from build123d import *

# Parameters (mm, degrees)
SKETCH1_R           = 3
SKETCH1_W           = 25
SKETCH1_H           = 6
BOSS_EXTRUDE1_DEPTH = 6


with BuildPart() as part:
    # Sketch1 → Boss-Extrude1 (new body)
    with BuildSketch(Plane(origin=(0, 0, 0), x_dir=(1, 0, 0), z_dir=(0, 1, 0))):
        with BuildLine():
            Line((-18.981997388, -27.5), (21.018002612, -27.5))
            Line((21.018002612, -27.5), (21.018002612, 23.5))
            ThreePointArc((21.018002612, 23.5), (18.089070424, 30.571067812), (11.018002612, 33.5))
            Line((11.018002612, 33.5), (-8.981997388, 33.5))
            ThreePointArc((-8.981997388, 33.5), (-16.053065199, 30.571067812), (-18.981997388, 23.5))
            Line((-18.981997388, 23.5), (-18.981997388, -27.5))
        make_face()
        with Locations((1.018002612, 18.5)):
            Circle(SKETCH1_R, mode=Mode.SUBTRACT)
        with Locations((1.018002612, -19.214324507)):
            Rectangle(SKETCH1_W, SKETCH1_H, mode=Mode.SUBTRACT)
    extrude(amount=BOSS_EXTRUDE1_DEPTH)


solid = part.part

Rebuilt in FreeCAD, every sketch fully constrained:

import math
import FreeCAD as App
import Part
import Sketcher

V = App.Vector

doc = App.newDocument("Part")
body = doc.addObject("PartDesign::Body", "Body")

# Sketch on XZ plane
sketch1 = body.newObject("Sketcher::SketchObject", "Sketch")
sketch1.AttachmentSupport = (doc.getObject("XZ_Plane"), [""])
sketch1.MapMode = "FlatFace"
sketch1.addGeometry(Part.LineSegment(V(-18.981997, 27.5, 0), V(21.018003, 27.5, 0)), False)
sketch1.addGeometry(Part.LineSegment(V(21.018003, 27.5, 0), V(21.018003, -23.5, 0)), False)
sketch1.addGeometry(Part.ArcOfCircle(Part.Circle(V(11.018003, -23.5, 0), V(0, 0, 1), 10), math.radians(-90), math.radians(0)), False)
sketch1.addGeometry(Part.LineSegment(V(11.018003, -33.5, 0), V(-8.981997, -33.5, 0)), False)
sketch1.addGeometry(Part.ArcOfCircle(Part.Circle(V(-8.981997, -23.5, 0), V(0, 0, 1), 10), math.radians(-180), math.radians(-90)), False)
sketch1.addGeometry(Part.LineSegment(V(-18.981997, -23.5, 0), V(-18.981997, 27.5, 0)), False)
sketch1.addGeometry(Part.LineSegment(V(13.518003, 22.214325, 0), V(-11.481997, 22.214325, 0)), False)
sketch1.addGeometry(Part.LineSegment(V(-11.481997, 22.214325, 0), V(-11.481997, 16.214325, 0)), False)
sketch1.addGeometry(Part.LineSegment(V(-11.481997, 16.214325, 0), V(13.518003, 16.214325, 0)), False)
sketch1.addGeometry(Part.LineSegment(V(13.518003, 16.214325, 0), V(13.518003, 22.214325, 0)), False)
sketch1.addGeometry(Part.Circle(V(1.018003, -18.5, 0), V(0, 0, 1), 3), False)
sketch1.addConstraint(Sketcher.Constraint("Coincident", 0, 2, 1, 1))
sketch1.addConstraint(Sketcher.Constraint("Tangent", 1, 2, 2, 2))
sketch1.addConstraint(Sketcher.Constraint("Tangent", 2, 1, 3, 1))
sketch1.addConstraint(Sketcher.Constraint("Tangent", 3, 2, 4, 2))
sketch1.addConstraint(Sketcher.Constraint("Tangent", 4, 1, 5, 1))
sketch1.addConstraint(Sketcher.Constraint("Coincident", 5, 2, 0, 1))
sketch1.addConstraint(Sketcher.Constraint("Coincident", 6, 2, 7, 1))
sketch1.addConstraint(Sketcher.Constraint("Coincident", 7, 2, 8, 1))
sketch1.addConstraint(Sketcher.Constraint("Coincident", 8, 2, 9, 1))
sketch1.addConstraint(Sketcher.Constraint("Coincident", 9, 2, 6, 1))
sketch1.addConstraint(Sketcher.Constraint("Horizontal", 0))
sketch1.addConstraint(Sketcher.Constraint("Vertical", 1))
sketch1.addConstraint(Sketcher.Constraint("Horizontal", 3))
sketch1.addConstraint(Sketcher.Constraint("Vertical", 5))
sketch1.addConstraint(Sketcher.Constraint("Horizontal", 6))
sketch1.addConstraint(Sketcher.Constraint("Vertical", 7))
sketch1.addConstraint(Sketcher.Constraint("Horizontal", 8))
sketch1.addConstraint(Sketcher.Constraint("Vertical", 9))
sketch1.addConstraint(Sketcher.Constraint("Equal", 2, 4))
sketch1.addConstraint(Sketcher.Constraint("Diameter", 10, 6.0))
sketch1.addConstraint(Sketcher.Constraint("Radius", 2, 10.0))
sketch1.addConstraint(Sketcher.Constraint("DistanceX", 0, 1, 0, 2, 40.0))
sketch1.addConstraint(Sketcher.Constraint("DistanceX", 6, 2, 6, 1, 25.0))
sketch1.addConstraint(Sketcher.Constraint("DistanceY", 1, 2, 1, 1, 51.0))
sketch1.addConstraint(Sketcher.Constraint("DistanceY", 7, 2, 7, 1, 6.0))
sketch1.addConstraint(Sketcher.Constraint("DistanceX", 4, 3, 10, 3, 10.0))
sketch1.addConstraint(Sketcher.Constraint("DistanceY", 4, 3, 10, 3, 5.0))
sketch1.addConstraint(Sketcher.Constraint("DistanceY", 2, 3, -1, 1, 23.5))
sketch1.addConstraint(Sketcher.Constraint("DistanceX", 5, 2, 6, 2, 7.5))
sketch1.addConstraint(Sketcher.Constraint("DistanceX", -1, 1, 2, 3, 11.018003))
sketch1.addConstraint(Sketcher.Constraint("DistanceY", -1, 1, 6, 2, 22.214325))
pad1 = body.newObject("PartDesign::Pad", "Pad")
pad1.Profile = sketch1
pad1.Length = 6
pad1.Reversed = True

doc.recompute()
